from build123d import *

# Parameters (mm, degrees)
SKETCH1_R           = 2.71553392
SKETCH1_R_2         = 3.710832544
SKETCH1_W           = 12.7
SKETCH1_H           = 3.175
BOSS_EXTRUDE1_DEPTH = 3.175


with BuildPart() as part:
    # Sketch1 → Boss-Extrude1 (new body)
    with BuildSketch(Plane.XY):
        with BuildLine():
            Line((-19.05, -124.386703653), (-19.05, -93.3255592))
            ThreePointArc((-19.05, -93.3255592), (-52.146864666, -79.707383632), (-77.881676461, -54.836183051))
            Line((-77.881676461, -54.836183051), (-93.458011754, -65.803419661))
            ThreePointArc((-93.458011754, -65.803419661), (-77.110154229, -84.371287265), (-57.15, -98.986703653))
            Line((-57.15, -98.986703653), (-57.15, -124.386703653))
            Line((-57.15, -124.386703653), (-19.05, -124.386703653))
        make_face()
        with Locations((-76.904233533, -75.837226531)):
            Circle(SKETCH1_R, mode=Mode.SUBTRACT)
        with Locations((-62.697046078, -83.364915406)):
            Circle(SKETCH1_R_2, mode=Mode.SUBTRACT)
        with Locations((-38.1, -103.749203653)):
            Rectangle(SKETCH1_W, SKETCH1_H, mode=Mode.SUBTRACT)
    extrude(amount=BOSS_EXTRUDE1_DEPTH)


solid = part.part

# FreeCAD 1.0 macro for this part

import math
import FreeCAD as App
import Part
import Sketcher

V = App.Vector
Q = App.Units.Quantity

doc = App.newDocument("Part")
params = doc.addObject("Spreadsheet::Sheet", "Params")
for row, (alias, value) in enumerate([
    ("sketch1_radius", "4.5 in"),
    ("sketch1_height", "1 in"),
    ("sketch1_radius2", "3.75 in"),
    ("sketch1_width", "1.5 in"),
    ("sketch1_width2", "0.5 in"),
    ("pad1_length", "0.125 in"),
], start=1):
    params.set(f"A{row}", alias)
    params.set(f"B{row}", "=" + value)
    params.setAlias(f"B{row}", alias)

body = doc.addObject("PartDesign::Body", "Body")

# Sketch on XY plane
sketch1 = body.newObject("Sketcher::SketchObject", "Sketch")
sketch1.AttachmentSupport = (doc.getObject("XY_Plane"), [""])
sketch1.MapMode = "FlatFace"
sketch1.addGeometry([
    Part.LineSegment(V(-19.1, -124.4, 0), V(-19.1, -93.3, 0)),  # 0
    Part.ArcOfCircle(Part.Circle(V(0, 0, 0), V(0, 0, 1), 95.3), math.radians(-145), math.radians(-102)),  # 1
    Part.LineSegment(V(-77.9, -54.8, 0), V(-93.5, -65.8, 0)),  # 2
    Part.ArcOfCircle(Part.Circle(V(0, 0, 0), V(0, 0, 1), 114.3), math.radians(-145), math.radians(-120)),  # 3
    Part.LineSegment(V(-57.1, -99, 0), V(-57.1, -124.4, 0)),  # 4
    Part.LineSegment(V(-57.1, -124.4, 0), V(-19.1, -124.4, 0)),  # 5
    Part.LineSegment(V(-31.8, -105.3, 0), V(-44.5, -105.3, 0)),  # 6
    Part.LineSegment(V(-44.5, -105.3, 0), V(-44.5, -102.2, 0)),  # 7
    Part.LineSegment(V(-44.5, -102.2, 0), V(-31.8, -102.2, 0)),  # 8
    Part.LineSegment(V(-31.8, -102.2, 0), V(-31.8, -105.3, 0)),  # 9
    Part.Circle(V(-62.7, -83.4, 0), V(0, 0, 1), 3.7),  # 10
    Part.Circle(V(-76.9, -75.8, 0), V(0, 0, 1), 2.7),  # 11
], False)
sketch1.addConstraint([
    Sketcher.Constraint("Coincident", 0, 2, 1, 2),
    Sketcher.Constraint("Coincident", 1, 1, 2, 1),
    Sketcher.Constraint("Coincident", 2, 2, 3, 1),
    Sketcher.Constraint("Coincident", 3, 2, 4, 1),
    Sketcher.Constraint("Coincident", 4, 2, 5, 1),
    Sketcher.Constraint("Coincident", 5, 2, 0, 1),
    Sketcher.Constraint("Coincident", 6, 2, 7, 1),
    Sketcher.Constraint("Coincident", 7, 2, 8, 1),
    Sketcher.Constraint("Coincident", 8, 2, 9, 1),
    Sketcher.Constraint("Coincident", 9, 2, 6, 1),
    Sketcher.Constraint("Vertical", 0),
    Sketcher.Constraint("Vertical", 4),
    Sketcher.Constraint("Horizontal", 5),
    Sketcher.Constraint("Horizontal", 6),
    Sketcher.Constraint("Vertical", 7),
    Sketcher.Constraint("Horizontal", 8),
    Sketcher.Constraint("Vertical", 9),
    Sketcher.Constraint("Coincident", 1, 3, -1, 1),
    Sketcher.Constraint("Coincident", 3, 3, -1, 1),
    Sketcher.Constraint("Radius", 3, Q("4.5 in")),
    Sketcher.Constraint("DistanceY", 4, 2, 4, 1, Q("1 in")),
    Sketcher.Constraint("Radius", 1, Q("3.75 in")),
    Sketcher.Constraint("DistanceX", 5, 1, 5, 2, Q("1.5 in")),
    Sketcher.Constraint("DistanceX", 6, 2, 6, 1, Q("0.5 in")),
    Sketcher.Constraint("DistanceX", 6, 2, 0, 2, Q("1 in")),
    Sketcher.Constraint("DistanceY", 7, 1, 7, 2, Q("0.125 in")),
    Sketcher.Constraint("DistanceX", 0, 2, -1, 1, Q("0.75 in")),
    Sketcher.Constraint("DistanceY", 6, 2, 3, 2, Q("0.25 in")),
    Sketcher.Constraint("Diameter", 10, 7.421665),
    Sketcher.Constraint("Diameter", 11, 5.431068),
    Sketcher.Constraint("DistanceX", 2, 2, -1, 1, 93.458012),
    Sketcher.Constraint("DistanceY", 10, 3, 11, 3, 7.527689),
    Sketcher.Constraint("DistanceX", 1, 1, 10, 3, 15.18463),
    Sketcher.Constraint("DistanceX", 2, 2, 11, 3, 16.553778),
    Sketcher.Constraint("DistanceY", 3, 2, 10, 3, 15.621788),
    Sketcher.Constraint("DistanceY", 3, 2, 1, 1, 44.150521),
])
sketch1.setExpression("Constraints[19]", "Params.sketch1_radius")
sketch1.setExpression("Constraints[20]", "Params.sketch1_height")
sketch1.setExpression("Constraints[21]", "Params.sketch1_radius2")
sketch1.setExpression("Constraints[22]", "Params.sketch1_width")
sketch1.setExpression("Constraints[23]", "Params.sketch1_width2")
pad1 = body.newObject("PartDesign::Pad", "Pad")
pad1.Profile = sketch1
pad1.setExpression("Length", "Params.pad1_length")

doc.recompute()
